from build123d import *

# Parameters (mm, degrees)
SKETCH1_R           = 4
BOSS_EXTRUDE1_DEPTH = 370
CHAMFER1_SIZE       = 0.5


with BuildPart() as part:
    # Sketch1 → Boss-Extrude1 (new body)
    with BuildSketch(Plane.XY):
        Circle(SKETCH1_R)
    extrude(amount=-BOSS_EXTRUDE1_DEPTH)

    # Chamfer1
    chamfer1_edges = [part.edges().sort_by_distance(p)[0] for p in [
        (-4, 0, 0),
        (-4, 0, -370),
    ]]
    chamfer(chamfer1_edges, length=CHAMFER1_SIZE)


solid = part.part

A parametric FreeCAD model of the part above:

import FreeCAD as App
import Part
import Sketcher

V = App.Vector


def edges_at(feature, points):
    """Names of the edges that pass closest to the given points."""
    edges = feature.Shape.Edges
    near = lambda p: min(range(len(edges)), key=lambda i: edges[i].distToShape(Part.Vertex(*p))[0])
    return sorted({f"Edge{near(p) + 1}" for p in points})

doc = App.newDocument("Part")
body = doc.addObject("PartDesign::Body", "Body")

# Sketch on XY plane
sketch1 = body.newObject("Sketcher::SketchObject", "Sketch")
sketch1.AttachmentSupport = (doc.getObject("XY_Plane"), [""])
sketch1.MapMode = "FlatFace"
sketch1.addGeometry(Part.Circle(V(0, 0, 0), V(0, 0, 1), 4), False)
sketch1.addConstraint(Sketcher.Constraint("Coincident", 0, 3, -1, 1))
sketch1.addConstraint(Sketcher.Constraint("Diameter", 0, 8.0))
pad1 = body.newObject("PartDesign::Pad", "Pad")
pad1.Profile = sketch1
pad1.Length = 370
pad1.Reversed = True
doc.recompute()

chamfer = body.newObject("PartDesign::Chamfer", "Chamfer")
chamfer.Base = (pad1, edges_at(pad1, [(-4, 0, 0), (-4, 0, -370)]))
chamfer.Size = 0.5

doc.recompute()
